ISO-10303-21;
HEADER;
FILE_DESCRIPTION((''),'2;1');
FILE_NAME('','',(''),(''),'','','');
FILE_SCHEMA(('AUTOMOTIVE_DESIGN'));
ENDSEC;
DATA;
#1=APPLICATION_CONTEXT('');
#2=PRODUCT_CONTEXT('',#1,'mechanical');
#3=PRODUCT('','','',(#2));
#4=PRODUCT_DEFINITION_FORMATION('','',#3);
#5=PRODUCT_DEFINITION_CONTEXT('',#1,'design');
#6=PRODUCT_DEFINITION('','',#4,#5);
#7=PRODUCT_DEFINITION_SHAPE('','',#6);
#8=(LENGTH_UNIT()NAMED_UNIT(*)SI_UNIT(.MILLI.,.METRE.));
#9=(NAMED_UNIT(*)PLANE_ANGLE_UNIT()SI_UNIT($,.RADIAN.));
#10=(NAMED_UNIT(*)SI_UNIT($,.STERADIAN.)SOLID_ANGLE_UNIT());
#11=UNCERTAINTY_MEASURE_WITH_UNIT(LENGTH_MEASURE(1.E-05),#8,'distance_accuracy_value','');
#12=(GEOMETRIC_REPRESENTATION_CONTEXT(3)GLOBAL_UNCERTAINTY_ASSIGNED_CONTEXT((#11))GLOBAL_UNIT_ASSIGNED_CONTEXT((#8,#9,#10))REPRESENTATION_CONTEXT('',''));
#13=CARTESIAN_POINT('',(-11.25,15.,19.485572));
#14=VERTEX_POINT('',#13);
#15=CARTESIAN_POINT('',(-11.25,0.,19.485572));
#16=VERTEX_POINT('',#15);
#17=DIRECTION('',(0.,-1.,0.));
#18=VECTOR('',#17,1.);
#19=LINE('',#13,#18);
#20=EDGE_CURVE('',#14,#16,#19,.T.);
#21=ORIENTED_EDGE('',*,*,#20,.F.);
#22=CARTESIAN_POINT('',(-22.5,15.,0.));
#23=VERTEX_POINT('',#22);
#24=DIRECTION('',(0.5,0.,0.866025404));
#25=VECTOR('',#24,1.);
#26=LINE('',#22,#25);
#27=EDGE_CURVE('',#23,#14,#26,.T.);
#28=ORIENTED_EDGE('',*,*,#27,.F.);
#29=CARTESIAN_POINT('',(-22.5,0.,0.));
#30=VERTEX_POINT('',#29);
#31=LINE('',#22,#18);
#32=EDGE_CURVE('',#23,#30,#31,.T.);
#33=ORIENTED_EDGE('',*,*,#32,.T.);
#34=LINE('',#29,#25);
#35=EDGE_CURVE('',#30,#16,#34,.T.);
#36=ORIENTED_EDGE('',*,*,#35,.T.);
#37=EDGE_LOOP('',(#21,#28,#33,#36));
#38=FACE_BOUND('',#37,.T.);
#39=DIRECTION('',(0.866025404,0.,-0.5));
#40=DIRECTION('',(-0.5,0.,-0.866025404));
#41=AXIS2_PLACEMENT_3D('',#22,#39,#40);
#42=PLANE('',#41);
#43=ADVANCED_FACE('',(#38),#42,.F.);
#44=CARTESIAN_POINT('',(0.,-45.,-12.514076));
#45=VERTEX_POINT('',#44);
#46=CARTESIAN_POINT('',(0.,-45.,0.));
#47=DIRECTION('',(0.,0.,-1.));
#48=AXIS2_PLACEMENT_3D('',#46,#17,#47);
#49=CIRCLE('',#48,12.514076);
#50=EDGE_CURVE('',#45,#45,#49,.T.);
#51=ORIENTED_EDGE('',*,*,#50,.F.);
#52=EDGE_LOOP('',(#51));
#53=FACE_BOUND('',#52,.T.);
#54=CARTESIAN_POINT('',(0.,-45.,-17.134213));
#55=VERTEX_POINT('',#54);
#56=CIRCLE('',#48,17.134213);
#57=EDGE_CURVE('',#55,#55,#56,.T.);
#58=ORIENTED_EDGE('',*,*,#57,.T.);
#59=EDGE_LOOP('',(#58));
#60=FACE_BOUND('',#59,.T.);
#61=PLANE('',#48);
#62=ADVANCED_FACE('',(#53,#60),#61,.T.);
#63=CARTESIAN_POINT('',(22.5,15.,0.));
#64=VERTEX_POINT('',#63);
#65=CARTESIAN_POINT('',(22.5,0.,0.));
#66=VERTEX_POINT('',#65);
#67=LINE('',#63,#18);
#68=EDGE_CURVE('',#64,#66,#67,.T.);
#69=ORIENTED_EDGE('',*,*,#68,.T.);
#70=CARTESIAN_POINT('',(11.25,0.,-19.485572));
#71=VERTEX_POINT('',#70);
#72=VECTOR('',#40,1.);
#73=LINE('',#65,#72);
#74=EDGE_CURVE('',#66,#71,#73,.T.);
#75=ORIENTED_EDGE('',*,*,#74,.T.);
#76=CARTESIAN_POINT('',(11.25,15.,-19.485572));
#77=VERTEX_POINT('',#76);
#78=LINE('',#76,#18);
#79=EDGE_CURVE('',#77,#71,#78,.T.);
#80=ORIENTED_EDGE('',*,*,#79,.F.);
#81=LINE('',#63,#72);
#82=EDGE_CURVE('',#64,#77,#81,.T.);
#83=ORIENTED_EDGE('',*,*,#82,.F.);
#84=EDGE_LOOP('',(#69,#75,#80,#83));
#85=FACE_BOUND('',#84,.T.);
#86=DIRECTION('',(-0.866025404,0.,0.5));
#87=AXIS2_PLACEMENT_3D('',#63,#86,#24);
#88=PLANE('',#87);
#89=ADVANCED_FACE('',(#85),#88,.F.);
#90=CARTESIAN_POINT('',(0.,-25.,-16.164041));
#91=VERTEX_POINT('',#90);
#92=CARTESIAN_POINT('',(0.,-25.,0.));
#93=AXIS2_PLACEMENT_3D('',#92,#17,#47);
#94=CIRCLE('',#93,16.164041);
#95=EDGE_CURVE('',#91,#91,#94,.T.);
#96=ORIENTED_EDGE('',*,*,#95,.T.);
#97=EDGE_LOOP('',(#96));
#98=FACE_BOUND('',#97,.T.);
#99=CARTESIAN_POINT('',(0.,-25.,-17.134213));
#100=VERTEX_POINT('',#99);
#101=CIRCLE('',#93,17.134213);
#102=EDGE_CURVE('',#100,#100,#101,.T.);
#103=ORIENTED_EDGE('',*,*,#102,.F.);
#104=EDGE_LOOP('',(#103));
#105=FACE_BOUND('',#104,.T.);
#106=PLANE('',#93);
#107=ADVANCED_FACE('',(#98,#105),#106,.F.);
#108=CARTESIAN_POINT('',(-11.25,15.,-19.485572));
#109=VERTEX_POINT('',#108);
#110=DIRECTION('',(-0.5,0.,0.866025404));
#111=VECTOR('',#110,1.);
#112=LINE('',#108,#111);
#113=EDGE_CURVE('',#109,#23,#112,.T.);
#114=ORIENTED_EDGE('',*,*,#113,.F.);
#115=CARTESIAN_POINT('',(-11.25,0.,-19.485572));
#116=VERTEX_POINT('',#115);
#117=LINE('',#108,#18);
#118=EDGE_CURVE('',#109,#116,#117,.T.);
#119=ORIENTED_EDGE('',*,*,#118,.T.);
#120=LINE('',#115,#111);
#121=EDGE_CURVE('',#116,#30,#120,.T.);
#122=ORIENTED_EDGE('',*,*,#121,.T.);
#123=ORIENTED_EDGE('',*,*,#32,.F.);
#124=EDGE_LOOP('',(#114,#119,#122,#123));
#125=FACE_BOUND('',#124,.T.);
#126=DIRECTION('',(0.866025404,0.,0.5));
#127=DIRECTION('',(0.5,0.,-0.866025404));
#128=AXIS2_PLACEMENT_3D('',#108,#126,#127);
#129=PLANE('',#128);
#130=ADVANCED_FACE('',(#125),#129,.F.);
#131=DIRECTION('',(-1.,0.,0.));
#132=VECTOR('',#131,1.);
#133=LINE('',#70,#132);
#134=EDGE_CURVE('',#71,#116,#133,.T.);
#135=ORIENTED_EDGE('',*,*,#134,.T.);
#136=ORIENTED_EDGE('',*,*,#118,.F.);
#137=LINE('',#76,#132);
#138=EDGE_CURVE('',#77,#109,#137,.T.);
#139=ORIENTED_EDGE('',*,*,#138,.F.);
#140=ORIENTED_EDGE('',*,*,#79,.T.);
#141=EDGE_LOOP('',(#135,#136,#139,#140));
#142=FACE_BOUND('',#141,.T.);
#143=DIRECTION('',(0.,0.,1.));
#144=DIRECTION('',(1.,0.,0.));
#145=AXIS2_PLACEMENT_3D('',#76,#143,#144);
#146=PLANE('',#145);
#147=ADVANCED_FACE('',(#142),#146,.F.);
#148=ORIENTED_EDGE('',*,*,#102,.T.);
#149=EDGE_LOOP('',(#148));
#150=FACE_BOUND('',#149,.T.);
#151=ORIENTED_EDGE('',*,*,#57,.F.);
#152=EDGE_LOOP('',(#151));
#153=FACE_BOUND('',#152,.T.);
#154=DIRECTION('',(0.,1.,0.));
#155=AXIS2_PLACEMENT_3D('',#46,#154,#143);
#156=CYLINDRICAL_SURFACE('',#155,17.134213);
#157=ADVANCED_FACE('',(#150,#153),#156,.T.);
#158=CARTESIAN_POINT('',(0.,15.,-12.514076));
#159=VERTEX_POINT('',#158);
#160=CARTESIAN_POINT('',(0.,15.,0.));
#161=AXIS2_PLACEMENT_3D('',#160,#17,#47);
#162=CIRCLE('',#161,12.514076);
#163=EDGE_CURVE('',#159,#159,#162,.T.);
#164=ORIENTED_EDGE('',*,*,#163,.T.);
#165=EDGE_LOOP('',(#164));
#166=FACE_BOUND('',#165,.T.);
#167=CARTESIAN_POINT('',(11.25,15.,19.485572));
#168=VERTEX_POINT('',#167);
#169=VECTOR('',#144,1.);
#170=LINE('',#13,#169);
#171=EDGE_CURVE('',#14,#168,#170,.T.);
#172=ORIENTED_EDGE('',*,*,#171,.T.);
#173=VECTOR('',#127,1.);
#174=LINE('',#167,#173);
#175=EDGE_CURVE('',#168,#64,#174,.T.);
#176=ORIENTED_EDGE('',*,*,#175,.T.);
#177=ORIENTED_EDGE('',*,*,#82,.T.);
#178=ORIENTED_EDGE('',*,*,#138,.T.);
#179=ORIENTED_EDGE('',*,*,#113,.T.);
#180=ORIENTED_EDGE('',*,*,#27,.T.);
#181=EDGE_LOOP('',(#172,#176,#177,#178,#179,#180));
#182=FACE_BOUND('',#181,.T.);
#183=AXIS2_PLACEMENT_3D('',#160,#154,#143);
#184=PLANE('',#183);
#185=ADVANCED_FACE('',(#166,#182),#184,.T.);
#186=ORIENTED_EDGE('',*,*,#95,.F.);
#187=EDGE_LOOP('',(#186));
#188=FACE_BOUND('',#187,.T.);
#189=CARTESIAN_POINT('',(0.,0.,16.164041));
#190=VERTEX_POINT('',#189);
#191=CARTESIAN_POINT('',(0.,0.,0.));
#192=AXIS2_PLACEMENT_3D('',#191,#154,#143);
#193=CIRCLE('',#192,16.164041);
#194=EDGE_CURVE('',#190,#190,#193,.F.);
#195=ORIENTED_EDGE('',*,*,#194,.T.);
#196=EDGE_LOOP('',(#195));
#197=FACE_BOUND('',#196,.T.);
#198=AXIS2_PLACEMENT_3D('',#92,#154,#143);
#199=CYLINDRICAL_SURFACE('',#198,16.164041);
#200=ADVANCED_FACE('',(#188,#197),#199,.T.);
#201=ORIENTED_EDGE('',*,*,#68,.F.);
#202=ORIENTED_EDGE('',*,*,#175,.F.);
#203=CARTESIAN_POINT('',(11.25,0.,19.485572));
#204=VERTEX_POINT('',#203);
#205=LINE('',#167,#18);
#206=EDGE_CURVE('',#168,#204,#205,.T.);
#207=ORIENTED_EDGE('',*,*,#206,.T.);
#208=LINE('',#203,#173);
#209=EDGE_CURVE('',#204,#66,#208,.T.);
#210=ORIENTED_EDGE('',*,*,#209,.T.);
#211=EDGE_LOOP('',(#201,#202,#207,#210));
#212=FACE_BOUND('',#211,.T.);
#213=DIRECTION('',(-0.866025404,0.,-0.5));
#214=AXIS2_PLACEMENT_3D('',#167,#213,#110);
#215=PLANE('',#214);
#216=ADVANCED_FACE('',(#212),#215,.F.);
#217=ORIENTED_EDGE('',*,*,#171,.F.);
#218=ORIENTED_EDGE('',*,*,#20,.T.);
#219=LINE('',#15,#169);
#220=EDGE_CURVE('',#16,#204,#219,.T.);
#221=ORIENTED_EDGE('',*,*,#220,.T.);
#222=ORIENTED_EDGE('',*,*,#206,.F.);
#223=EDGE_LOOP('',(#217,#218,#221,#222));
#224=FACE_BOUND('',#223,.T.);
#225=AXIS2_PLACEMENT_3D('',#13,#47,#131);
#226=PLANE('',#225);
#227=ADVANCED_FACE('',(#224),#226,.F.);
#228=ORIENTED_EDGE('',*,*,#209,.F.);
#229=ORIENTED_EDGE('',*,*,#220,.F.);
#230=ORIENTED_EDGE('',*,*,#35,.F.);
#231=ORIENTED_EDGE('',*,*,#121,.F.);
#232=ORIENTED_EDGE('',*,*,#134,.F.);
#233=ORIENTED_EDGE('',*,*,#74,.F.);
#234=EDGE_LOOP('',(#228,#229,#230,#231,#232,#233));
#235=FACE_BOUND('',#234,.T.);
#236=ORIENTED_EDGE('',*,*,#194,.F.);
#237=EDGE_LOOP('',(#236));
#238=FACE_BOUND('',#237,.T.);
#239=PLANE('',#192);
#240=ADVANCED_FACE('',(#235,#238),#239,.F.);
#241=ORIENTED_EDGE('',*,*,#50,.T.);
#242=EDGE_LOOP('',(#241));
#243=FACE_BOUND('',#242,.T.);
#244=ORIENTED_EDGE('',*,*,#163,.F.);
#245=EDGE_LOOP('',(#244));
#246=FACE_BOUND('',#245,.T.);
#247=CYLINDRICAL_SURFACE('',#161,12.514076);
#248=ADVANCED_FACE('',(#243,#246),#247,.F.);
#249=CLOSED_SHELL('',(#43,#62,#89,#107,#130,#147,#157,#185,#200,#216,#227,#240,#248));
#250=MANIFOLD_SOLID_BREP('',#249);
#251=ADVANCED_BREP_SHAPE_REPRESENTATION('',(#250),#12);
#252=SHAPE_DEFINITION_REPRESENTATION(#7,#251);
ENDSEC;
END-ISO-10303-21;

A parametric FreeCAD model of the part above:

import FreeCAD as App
import Part
import Sketcher
Q = App.Units.Quantity

doc = App.newDocument("Part")
params = doc.addObject("Spreadsheet::Sheet", "Params")
for row, (alias, value) in enumerate([
    ("sketch1_width", "22.5 mm"),
    ("pad1_length", "15 mm"),
    ("pad2_length", "25 mm"),
    ("pad3_length", "20 mm"),
], start=1):
    params.set(f"A{row}", alias)
    params.set(f"B{row}", "=" + value)
    params.setAlias(f"B{row}", alias)

body = doc.addObject("PartDesign::Body", "Body")

sketch1 = body.newObject("Sketcher::SketchObject", "Sketch")
sketch1.AttachmentSupport = (doc.getObject("XZ_Plane"), [""])
sketch1.MapMode = "FlatFace"
sketch1.addGeometry(Part.LineSegment(App.Vector(22, 0, 0), App.Vector(11, -19, 0)), False)
sketch1.addGeometry(Part.LineSegment(App.Vector(11, -19, 0), App.Vector(-11, -19, 0)), False)
sketch1.addGeometry(Part.LineSegment(App.Vector(-11, -19, 0), App.Vector(-22, 0, 0)), False)
sketch1.addGeometry(Part.LineSegment(App.Vector(-22, 0, 0), App.Vector(-11, 19, 0)), False)
sketch1.addGeometry(Part.LineSegment(App.Vector(-11, 19, 0), App.Vector(11, 19, 0)), False)
sketch1.addGeometry(Part.LineSegment(App.Vector(11, 19, 0), App.Vector(22, 0, 0)), False)
sketch1.addConstraint(Sketcher.Constraint("Coincident", 0, 2, 1, 1))
sketch1.addConstraint(Sketcher.Constraint("Coincident", 1, 2, 2, 1))
sketch1.addConstraint(Sketcher.Constraint("Coincident", 2, 2, 3, 1))
sketch1.addConstraint(Sketcher.Constraint("Coincident", 3, 2, 4, 1))
sketch1.addConstraint(Sketcher.Constraint("Coincident", 4, 2, 5, 1))
sketch1.addConstraint(Sketcher.Constraint("Coincident", 5, 2, 0, 1))
sketch1.addConstraint(Sketcher.Constraint("Horizontal", 1))
sketch1.addConstraint(Sketcher.Constraint("Horizontal", 4))
sketch1.addConstraint(Sketcher.Constraint("Symmetric", 0, 2, 3, 2, -1, 1))
sketch1.addConstraint(Sketcher.Constraint("Symmetric", 2, 2, 5, 2, -1, 1))
sketch1.addConstraint(Sketcher.Constraint("PointOnObject", 2, 2, -1))
sketch1.addConstraint(Sketcher.Constraint("Parallel", 2, 5))
sketch1.addConstraint(Sketcher.Constraint("Vertical", 1, 2, 3, 2))
sketch1.addConstraint(Sketcher.Constraint("Angle", 0, Q("-120 deg")))
sketch1.addConstraint(Sketcher.Constraint("DistanceX", 1, 2, 1, 1, Q("22.5 mm")))
sketch1.addConstraint(Sketcher.Constraint("DistanceX", 2, 2, 5, 2, Q("45 mm")))
sketch1.setExpression("Constraints[14]", "Params.sketch1_width")
pad1 = body.newObject("PartDesign::Pad", "Pad")
pad1.Profile = sketch1
pad1.setExpression("Length", "Params.pad1_length")
pad1.Reversed = True

sketch2 = body.newObject("Sketcher::SketchObject", "Sketch001")
sketch2.AttachmentSupport = (doc.getObject("XZ_Plane"), [""])
sketch2.MapMode = "FlatFace"
sketch2.addGeometry(Part.Circle(App.Vector(0, 0, 0), App.Vector(0, 0, 1), 16), False)
sketch2.addConstraint(Sketcher.Constraint("Coincident", 0, 3, -1, 1))
sketch2.addConstraint(Sketcher.Constraint("Diameter", 0, Q("32.328082 mm")))
pad2 = body.newObject("PartDesign::Pad", "Pad001")
pad2.Profile = sketch2
pad2.setExpression("Length", "Params.pad2_length")

sketch3 = body.newObject("Sketcher::SketchObject", "Sketch002")
sketch3.AttachmentSupport = (doc.getObject("XZ_Plane"), [""])
sketch3.MapMode = "FlatFace"
sketch3.AttachmentOffset = App.Placement(App.Vector(0, 0, 25), App.Rotation())
sketch3.addGeometry(Part.Circle(App.Vector(0, 0, 0), App.Vector(0, 0, 1), 17), False)
sketch3.addConstraint(Sketcher.Constraint("Coincident", 0, 3, -1, 1))
sketch3.addConstraint(Sketcher.Constraint("Diameter", 0, Q("34.268426 mm")))
pad3 = body.newObject("PartDesign::Pad", "Pad002")
pad3.Profile = sketch3
pad3.setExpression("Length", "Params.pad3_length")

sketch4 = body.newObject("Sketcher::SketchObject", "Sketch003")
sketch4.AttachmentSupport = (doc.getObject("XZ_Plane"), [""])
sketch4.MapMode = "FlatFace"
sketch4.AttachmentOffset = App.Placement(App.Vector(0, 0, 45), App.Rotation())
sketch4.addGeometry(Part.Circle(App.Vector(0, 0, 0), App.Vector(0, 0, 1), 13), False)
sketch4.addConstraint(Sketcher.Constraint("Coincident", 0, 3, -1, 1))
sketch4.addConstraint(Sketcher.Constraint("Diameter", 0, Q("25.028152 mm")))
pocket1 = body.newObject("PartDesign::Pocket", "Pocket")
pocket1.Profile = sketch4
pocket1.Type = "ThroughAll"

doc.recompute()
